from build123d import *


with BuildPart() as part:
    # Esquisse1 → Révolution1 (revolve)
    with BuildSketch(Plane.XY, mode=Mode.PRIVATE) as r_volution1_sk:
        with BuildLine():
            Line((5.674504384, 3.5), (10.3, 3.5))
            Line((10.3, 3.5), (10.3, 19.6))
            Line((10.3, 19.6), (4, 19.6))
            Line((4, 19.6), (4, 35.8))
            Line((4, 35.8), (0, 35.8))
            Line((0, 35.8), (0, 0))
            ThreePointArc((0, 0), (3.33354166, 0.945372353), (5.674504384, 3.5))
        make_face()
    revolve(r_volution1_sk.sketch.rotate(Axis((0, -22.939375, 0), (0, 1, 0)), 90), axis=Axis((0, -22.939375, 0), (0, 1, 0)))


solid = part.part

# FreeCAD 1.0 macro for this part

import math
import FreeCAD as App
import Part
import Sketcher

V = App.Vector
Q = App.Units.Quantity

doc = App.newDocument("Part")
body = doc.addObject("PartDesign::Body", "Body")

# Sketch on XY plane
sketch1 = doc.addObject("Sketcher::SketchObject", "Sketch")
body.addObject(sketch1)
sketch1.AttachmentSupport = (doc.XY_Plane, [""])
sketch1.MapMode = "FlatFace"
sketch1.addGeometry(Part.LineSegment(V(5.674504, 3.5, 0), V(10.3, 3.5, 0)), False)
sketch1.addGeometry(Part.LineSegment(V(10.3, 3.5, 0), V(10.3, 19.6, 0)), False)
sketch1.addGeometry(Part.LineSegment(V(10.3, 19.6, 0), V(4, 19.6, 0)), False)
sketch1.addGeometry(Part.LineSegment(V(4, 19.6, 0), V(4, 35.8, 0)), False)
sketch1.addGeometry(Part.LineSegment(V(4, 35.8, 0), V(0, 35.8, 0)), False)
sketch1.addGeometry(Part.LineSegment(V(0, 35.8, 0), V(0, 0, 0)), False)
sketch1.addGeometry(Part.ArcOfCircle(Part.Circle(V(0, 6.35, 0), V(0, 0, 1), 6.35), math.radians(-90), math.radians(-26.667931)), False)
sketch1.addConstraint(Sketcher.Constraint("Coincident", 0, 2, 1, 1))
sketch1.addConstraint(Sketcher.Constraint("Coincident", 1, 2, 2, 1))
sketch1.addConstraint(Sketcher.Constraint("Coincident", 2, 2, 3, 1))
sketch1.addConstraint(Sketcher.Constraint("Coincident", 3, 2, 4, 1))
sketch1.addConstraint(Sketcher.Constraint("Coincident", 4, 2, 5, 1))
sketch1.addConstraint(Sketcher.Constraint("Coincident", 5, 2, 6, 1))
sketch1.addConstraint(Sketcher.Constraint("Coincident", 6, 2, 0, 1))
sketch1.addConstraint(Sketcher.Constraint("Horizontal", 0))
sketch1.addConstraint(Sketcher.Constraint("Vertical", 1))
sketch1.addConstraint(Sketcher.Constraint("Horizontal", 2))
sketch1.addConstraint(Sketcher.Constraint("Vertical", 3))
sketch1.addConstraint(Sketcher.Constraint("Horizontal", 4))
sketch1.addConstraint(Sketcher.Constraint("Vertical", 5))
sketch1.addConstraint(Sketcher.Constraint("Coincident", 5, 2, -1, 1))
sketch1.addConstraint(Sketcher.Constraint("PointOnObject", 6, 3, -2))
sketch1.addConstraint(Sketcher.Constraint("DistanceX", 4, 2, 4, 1, Q("4 mm")))
sketch1.addConstraint(Sketcher.Constraint("Radius", 6, Q("6.35 mm")))
sketch1.addConstraint(Sketcher.Constraint("DistanceX", 2, 2, 2, 1, Q("6.3 mm")))
sketch1.addConstraint(Sketcher.Constraint("DistanceY", 1, 1, 1, 2, Q("16.1 mm")))
sketch1.addConstraint(Sketcher.Constraint("DistanceY", 3, 1, 3, 2, Q("16.2 mm")))
sketch1.addConstraint(Sketcher.Constraint("DistanceY", 5, 2, 5, 1, Q("35.8 mm")))
revolution = doc.addObject("PartDesign::Revolution", "Revolution")
body.addObject(revolution)
revolution.Profile = sketch1
revolution.ReferenceAxis = (sketch1, ["V_Axis"])
revolution.Angle = 360

doc.recompute()
